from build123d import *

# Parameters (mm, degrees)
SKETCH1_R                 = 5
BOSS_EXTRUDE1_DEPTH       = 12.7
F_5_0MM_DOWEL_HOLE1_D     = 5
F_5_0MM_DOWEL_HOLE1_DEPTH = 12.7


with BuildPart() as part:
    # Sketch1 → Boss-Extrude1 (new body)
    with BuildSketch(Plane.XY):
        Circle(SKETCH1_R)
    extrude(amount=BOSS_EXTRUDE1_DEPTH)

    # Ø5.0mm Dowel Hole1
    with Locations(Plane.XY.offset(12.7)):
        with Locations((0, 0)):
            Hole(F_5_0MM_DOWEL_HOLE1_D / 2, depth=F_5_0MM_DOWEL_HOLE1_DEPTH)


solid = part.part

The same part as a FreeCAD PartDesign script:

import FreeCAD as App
import Part
import Sketcher
Q = App.Units.Quantity

doc = App.newDocument("Part")
body = doc.addObject("PartDesign::Body", "Body")

# Sketch on XY plane
sketch1 = body.newObject("Sketcher::SketchObject", "Sketch")
sketch1.AttachmentSupport = (doc.getObject("XY_Plane"), [""])
sketch1.MapMode = "FlatFace"
sketch1.addGeometry(Part.Circle(App.Vector(0, 0, 0), App.Vector(0, 0, 1), 5), False)
sketch1.addConstraint([
    Sketcher.Constraint("Coincident", 0, 3, -1, 1),
    Sketcher.Constraint("Diameter", 0, Q("10 mm")),
])
pad1 = body.newObject("PartDesign::Pad", "Pad")
pad1.Profile = sketch1
pad1.Length = 12.7

# Sketch on XY plane
sketch2 = body.newObject("Sketcher::SketchObject", "Sketch001")
sketch2.AttachmentSupport = (doc.getObject("XY_Plane"), [""])
sketch2.MapMode = "FlatFace"
sketch2.AttachmentOffset = App.Placement(App.Vector(0, 0, 12.7), App.Rotation())
sketch2.addGeometry(Part.Circle(App.Vector(0, 0, 0), App.Vector(0, 0, 1), 2.5), False)
sketch2.addConstraint([
    Sketcher.Constraint("Coincident", 0, 3, -1, 1),
    Sketcher.Constraint("Diameter", 0, Q("5 mm")),
])
doc.recompute()
hole = body.newObject("PartDesign::Hole", "Hole")
hole.Profile = sketch2
hole.ThreadType = "None"
hole.Diameter = 5
hole.DepthType = "Dimension"
hole.Depth = 12.7
hole.DrillPoint = "Flat"

doc.recompute()
